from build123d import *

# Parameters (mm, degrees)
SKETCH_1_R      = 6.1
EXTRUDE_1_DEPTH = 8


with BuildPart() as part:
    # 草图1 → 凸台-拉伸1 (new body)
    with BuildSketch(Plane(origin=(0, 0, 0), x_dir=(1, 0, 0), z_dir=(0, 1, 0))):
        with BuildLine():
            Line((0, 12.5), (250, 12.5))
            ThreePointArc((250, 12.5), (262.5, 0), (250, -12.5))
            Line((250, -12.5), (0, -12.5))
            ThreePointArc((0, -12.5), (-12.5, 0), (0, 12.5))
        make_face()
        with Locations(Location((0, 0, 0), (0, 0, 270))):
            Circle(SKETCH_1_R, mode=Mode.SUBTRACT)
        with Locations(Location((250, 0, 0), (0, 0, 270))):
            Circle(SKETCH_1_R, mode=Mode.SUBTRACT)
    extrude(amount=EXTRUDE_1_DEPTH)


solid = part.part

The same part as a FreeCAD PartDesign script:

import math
import FreeCAD as App
import Part
import Sketcher

doc = App.newDocument("Part")
params = doc.addObject("Spreadsheet::Sheet", "Params")
for row, (alias, value) in enumerate([
    ("sketch1_diameter", "12.2 mm"),
    ("sketch1_radius", "12.5 mm"),
    ("sketch1_width", "250 mm"),
    ("pad1_length", "8 mm"),
], start=1):
    params.set(f"A{row}", alias)
    params.set(f"B{row}", "=" + value)
    params.setAlias(f"B{row}", alias)

body = doc.addObject("PartDesign::Body", "Body")

# Sketch on XZ plane
sketch1 = body.newObject("Sketcher::SketchObject", "Sketch")
sketch1.AttachmentSupport = (doc.getObject("XZ_Plane"), [""])
sketch1.MapMode = "FlatFace"
sketch1.addGeometry(Part.LineSegment(App.Vector(250, -12, 0), App.Vector(0, -12, 0)), False)
sketch1.addGeometry(Part.ArcOfCircle(Part.Circle(App.Vector(0, 0, 0), App.Vector(0, 0, 1), 12), math.radians(90), math.radians(270)), False)
sketch1.addGeometry(Part.LineSegment(App.Vector(0, 12, 0), App.Vector(250, 12, 0)), False)
sketch1.addGeometry(Part.ArcOfCircle(Part.Circle(App.Vector(250, 0, 0), App.Vector(0, 0, 1), 12), math.radians(-90), math.radians(90)), False)
sketch1.addGeometry(Part.Circle(App.Vector(250, 0, 0), App.Vector(0, 0, 1), 6), False)
sketch1.addGeometry(Part.Circle(App.Vector(0, 0, 0), App.Vector(0, 0, 1), 6), False)
sketch1.addConstraint(Sketcher.Constraint("Tangent", 0, 2, 1, 2))
sketch1.addConstraint(Sketcher.Constraint("Tangent", 1, 1, 2, 1))
sketch1.addConstraint(Sketcher.Constraint("Tangent", 2, 2, 3, 2))
sketch1.addConstraint(Sketcher.Constraint("Tangent", 3, 1, 0, 1))
sketch1.addConstraint(Sketcher.Constraint("Horizontal", 0))
sketch1.addConstraint(Sketcher.Constraint("Horizontal", 2))
sketch1.addConstraint(Sketcher.Constraint("Coincident", 1, 3, -1, 1))
sketch1.addConstraint(Sketcher.Constraint("Coincident", 5, 3, -1, 1))
sketch1.addConstraint(Sketcher.Constraint("Coincident", 4, 3, 3, 3))
sketch1.addConstraint(Sketcher.Constraint("Equal", 4, 5))
sketch1.addConstraint(Sketcher.Constraint("Diameter", 4, 12.2))
sketch1.addConstraint(Sketcher.Constraint("Radius", 1, 12.5))
sketch1.addConstraint(Sketcher.Constraint("DistanceX", 0, 2, 0, 1, 250.0))
sketch1.setExpression("Constraints[10]", "Params.sketch1_diameter")
sketch1.setExpression("Constraints[11]", "Params.sketch1_radius")
sketch1.setExpression("Constraints[12]", "Params.sketch1_width")
pad1 = body.newObject("PartDesign::Pad", "Pad")
pad1.Profile = sketch1
pad1.setExpression("Length", "Params.pad1_length")
pad1.Reversed = True

doc.recompute()
